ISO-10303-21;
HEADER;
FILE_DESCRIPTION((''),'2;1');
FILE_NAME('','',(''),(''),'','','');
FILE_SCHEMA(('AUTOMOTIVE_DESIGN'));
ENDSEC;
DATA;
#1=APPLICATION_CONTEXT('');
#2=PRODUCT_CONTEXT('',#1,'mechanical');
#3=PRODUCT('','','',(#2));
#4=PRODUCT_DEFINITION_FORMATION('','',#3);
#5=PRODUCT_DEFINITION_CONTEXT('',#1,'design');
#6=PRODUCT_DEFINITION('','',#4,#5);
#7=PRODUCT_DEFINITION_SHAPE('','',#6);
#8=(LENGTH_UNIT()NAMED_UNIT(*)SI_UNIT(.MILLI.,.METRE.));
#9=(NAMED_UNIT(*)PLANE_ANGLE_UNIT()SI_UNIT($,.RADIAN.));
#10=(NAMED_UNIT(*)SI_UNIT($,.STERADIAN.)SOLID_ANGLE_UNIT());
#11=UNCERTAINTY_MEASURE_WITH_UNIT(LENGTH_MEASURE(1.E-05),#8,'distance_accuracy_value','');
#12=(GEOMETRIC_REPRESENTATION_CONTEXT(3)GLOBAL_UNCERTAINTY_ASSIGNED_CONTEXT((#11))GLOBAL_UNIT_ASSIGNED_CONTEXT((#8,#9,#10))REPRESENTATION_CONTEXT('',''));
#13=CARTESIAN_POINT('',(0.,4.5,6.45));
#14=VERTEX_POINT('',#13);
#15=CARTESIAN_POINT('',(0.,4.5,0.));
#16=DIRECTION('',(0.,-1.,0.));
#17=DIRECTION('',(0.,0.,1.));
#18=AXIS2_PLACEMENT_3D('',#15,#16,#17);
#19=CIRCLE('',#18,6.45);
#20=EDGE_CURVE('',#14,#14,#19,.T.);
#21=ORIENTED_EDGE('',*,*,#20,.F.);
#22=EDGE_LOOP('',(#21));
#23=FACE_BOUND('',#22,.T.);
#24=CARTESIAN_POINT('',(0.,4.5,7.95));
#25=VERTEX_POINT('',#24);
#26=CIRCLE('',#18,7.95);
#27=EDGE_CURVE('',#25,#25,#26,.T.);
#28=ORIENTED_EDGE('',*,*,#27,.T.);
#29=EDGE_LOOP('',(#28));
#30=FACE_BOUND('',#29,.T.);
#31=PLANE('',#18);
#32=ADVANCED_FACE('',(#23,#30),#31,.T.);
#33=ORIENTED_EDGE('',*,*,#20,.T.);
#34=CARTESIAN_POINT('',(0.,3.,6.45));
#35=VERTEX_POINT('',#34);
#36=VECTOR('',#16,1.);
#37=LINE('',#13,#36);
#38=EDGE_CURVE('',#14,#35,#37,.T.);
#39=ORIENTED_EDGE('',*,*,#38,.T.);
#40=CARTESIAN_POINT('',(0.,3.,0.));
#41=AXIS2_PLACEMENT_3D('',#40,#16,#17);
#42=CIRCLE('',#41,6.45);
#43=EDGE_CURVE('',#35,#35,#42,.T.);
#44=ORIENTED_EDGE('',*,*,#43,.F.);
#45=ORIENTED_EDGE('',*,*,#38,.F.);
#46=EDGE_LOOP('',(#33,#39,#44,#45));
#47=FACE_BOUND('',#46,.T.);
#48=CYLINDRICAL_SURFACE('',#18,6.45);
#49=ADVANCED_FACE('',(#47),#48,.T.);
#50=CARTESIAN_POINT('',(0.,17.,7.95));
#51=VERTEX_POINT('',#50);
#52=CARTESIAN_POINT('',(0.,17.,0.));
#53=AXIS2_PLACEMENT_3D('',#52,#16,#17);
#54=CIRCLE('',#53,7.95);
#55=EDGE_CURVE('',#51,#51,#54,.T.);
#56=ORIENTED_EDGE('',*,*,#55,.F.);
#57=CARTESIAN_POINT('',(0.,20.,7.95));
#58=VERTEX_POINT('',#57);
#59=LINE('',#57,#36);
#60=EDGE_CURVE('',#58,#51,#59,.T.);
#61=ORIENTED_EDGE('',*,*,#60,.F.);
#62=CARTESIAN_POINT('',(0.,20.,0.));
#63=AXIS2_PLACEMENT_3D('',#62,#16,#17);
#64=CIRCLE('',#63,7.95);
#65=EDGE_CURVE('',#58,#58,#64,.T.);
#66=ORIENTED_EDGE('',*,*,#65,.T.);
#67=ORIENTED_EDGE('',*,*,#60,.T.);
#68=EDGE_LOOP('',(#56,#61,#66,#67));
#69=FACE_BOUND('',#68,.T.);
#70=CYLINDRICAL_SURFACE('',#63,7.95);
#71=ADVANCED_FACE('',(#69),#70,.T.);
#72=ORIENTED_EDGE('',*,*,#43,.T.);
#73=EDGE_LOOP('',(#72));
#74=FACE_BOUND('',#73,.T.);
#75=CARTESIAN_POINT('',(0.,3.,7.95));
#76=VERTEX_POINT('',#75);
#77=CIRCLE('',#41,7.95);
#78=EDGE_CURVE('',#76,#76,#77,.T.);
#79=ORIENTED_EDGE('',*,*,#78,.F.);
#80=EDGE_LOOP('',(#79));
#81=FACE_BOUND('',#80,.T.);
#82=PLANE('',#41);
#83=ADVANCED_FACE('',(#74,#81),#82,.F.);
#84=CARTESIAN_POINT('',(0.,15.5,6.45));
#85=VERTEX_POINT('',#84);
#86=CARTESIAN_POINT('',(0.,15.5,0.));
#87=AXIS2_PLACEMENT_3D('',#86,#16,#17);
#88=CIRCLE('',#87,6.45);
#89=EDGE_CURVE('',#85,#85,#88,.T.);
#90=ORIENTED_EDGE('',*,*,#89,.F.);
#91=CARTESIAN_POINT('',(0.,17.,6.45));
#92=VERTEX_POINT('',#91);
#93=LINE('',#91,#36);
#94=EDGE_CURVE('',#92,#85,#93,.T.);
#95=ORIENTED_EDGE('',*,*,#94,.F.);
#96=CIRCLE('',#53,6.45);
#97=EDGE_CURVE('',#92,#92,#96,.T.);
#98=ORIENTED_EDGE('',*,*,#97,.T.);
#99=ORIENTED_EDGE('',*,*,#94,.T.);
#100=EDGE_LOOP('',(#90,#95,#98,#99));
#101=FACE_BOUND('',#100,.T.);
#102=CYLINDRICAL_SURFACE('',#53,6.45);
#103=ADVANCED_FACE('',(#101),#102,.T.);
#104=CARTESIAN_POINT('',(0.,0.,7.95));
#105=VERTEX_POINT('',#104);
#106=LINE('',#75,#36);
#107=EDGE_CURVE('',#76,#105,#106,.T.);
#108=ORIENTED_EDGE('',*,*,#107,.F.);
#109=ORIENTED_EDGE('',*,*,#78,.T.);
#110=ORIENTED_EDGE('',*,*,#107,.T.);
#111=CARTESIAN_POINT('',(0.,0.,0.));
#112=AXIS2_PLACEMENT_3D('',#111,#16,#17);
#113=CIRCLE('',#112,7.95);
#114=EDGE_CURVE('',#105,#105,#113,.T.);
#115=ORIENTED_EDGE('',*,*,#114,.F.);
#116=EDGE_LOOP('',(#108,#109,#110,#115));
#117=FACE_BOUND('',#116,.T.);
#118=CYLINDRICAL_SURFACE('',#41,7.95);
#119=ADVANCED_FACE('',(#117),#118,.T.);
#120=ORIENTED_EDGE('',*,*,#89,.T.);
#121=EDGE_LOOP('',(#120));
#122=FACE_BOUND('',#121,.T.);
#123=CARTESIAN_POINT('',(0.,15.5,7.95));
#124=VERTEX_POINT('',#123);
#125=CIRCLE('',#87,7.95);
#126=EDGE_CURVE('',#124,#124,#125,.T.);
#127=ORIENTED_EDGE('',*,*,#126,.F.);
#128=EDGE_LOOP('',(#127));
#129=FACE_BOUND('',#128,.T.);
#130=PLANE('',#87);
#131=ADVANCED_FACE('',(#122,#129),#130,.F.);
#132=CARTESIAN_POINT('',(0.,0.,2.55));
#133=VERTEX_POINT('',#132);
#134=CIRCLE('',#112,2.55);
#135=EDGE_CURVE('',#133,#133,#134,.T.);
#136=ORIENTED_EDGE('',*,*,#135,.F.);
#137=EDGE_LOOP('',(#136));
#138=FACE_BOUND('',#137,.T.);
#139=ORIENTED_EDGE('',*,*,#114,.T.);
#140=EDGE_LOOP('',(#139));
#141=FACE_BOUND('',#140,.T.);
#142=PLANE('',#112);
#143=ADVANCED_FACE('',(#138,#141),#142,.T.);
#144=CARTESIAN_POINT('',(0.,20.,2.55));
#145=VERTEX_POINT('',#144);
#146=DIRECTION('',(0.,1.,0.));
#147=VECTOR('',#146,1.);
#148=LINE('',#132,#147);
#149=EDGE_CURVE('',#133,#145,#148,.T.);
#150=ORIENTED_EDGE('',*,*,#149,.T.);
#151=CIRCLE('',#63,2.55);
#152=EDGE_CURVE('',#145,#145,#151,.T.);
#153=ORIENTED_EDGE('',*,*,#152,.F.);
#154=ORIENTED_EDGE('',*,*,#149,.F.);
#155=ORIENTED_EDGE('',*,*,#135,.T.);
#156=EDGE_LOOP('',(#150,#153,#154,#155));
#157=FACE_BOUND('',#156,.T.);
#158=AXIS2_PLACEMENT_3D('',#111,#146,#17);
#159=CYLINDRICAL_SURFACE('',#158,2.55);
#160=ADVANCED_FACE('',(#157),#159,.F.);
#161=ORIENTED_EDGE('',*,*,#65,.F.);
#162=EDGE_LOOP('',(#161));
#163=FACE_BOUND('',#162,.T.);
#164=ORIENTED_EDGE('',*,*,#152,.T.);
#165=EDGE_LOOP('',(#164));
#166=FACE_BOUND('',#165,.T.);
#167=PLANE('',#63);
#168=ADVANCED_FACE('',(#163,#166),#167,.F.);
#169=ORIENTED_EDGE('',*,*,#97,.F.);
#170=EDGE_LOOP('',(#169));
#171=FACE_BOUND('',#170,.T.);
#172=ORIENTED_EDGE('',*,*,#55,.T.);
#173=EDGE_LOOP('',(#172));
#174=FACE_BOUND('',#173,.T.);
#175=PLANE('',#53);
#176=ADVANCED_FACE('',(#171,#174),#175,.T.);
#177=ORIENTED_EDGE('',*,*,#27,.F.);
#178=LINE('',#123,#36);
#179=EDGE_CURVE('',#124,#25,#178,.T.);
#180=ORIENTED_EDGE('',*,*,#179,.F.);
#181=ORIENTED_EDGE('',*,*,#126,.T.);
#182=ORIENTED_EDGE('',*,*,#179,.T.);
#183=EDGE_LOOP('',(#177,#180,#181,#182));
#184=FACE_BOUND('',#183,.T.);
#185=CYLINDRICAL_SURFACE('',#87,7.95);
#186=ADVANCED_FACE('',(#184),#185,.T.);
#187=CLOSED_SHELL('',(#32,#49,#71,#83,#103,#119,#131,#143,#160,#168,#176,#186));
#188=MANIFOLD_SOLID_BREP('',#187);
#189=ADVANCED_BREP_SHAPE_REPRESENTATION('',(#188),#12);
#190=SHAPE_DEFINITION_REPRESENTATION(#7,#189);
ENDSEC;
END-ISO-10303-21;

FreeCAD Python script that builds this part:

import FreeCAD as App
import Part
import Sketcher
from FreeCAD import Vector
Q = App.Units.Quantity

doc = App.newDocument("Part")
body = doc.addObject("PartDesign::Body", "Body")

# Sketch on YZ plane
sketch1 = body.newObject("Sketcher::SketchObject", "Sketch")
sketch1.AttachmentSupport = (doc.getObject("YZ_Plane"), [""])
sketch1.MapMode = "FlatFace"
sketch1.addGeometry([
    Part.LineSegment(Vector(0, 2.55, 0), Vector(20, 2.55, 0)),  # 0
    Part.LineSegment(Vector(20, 2.55, 0), Vector(20, 7.95, 0)),  # 1
    Part.LineSegment(Vector(20, 7.95, 0), Vector(17, 7.95, 0)),  # 2
    Part.LineSegment(Vector(17, 7.95, 0), Vector(17, 6.45, 0)),  # 3
    Part.LineSegment(Vector(17, 6.45, 0), Vector(15.5, 6.45, 0)),  # 4
    Part.LineSegment(Vector(15.5, 6.45, 0), Vector(15.5, 7.95, 0)),  # 5
    Part.LineSegment(Vector(15.5, 7.95, 0), Vector(4.5, 7.95, 0)),  # 6
    Part.LineSegment(Vector(4.5, 7.95, 0), Vector(4.5, 6.45, 0)),  # 7
    Part.LineSegment(Vector(4.5, 6.45, 0), Vector(3, 6.45, 0)),  # 8
    Part.LineSegment(Vector(3, 6.45, 0), Vector(3, 7.95, 0)),  # 9
    Part.LineSegment(Vector(3, 7.95, 0), Vector(0, 7.95, 0)),  # 10
    Part.LineSegment(Vector(0, 7.95, 0), Vector(0, 2.55, 0)),  # 11
], False)
sketch1.addConstraint([
    Sketcher.Constraint("Coincident", 0, 2, 1, 1),
    Sketcher.Constraint("Coincident", 1, 2, 2, 1),
    Sketcher.Constraint("Coincident", 2, 2, 3, 1),
    Sketcher.Constraint("Coincident", 3, 2, 4, 1),
    Sketcher.Constraint("Coincident", 4, 2, 5, 1),
    Sketcher.Constraint("Coincident", 5, 2, 6, 1),
    Sketcher.Constraint("Coincident", 6, 2, 7, 1),
    Sketcher.Constraint("Coincident", 7, 2, 8, 1),
    Sketcher.Constraint("Coincident", 8, 2, 9, 1),
    Sketcher.Constraint("Coincident", 9, 2, 10, 1),
    Sketcher.Constraint("Coincident", 10, 2, 11, 1),
    Sketcher.Constraint("Coincident", 11, 2, 0, 1),
    Sketcher.Constraint("Horizontal", 0),
    Sketcher.Constraint("Vertical", 1),
    Sketcher.Constraint("Horizontal", 2),
    Sketcher.Constraint("Vertical", 3),
    Sketcher.Constraint("Horizontal", 4),
    Sketcher.Constraint("Vertical", 5),
    Sketcher.Constraint("Horizontal", 6),
    Sketcher.Constraint("Vertical", 7),
    Sketcher.Constraint("Horizontal", 8),
    Sketcher.Constraint("Vertical", 9),
    Sketcher.Constraint("Horizontal", 10),
    Sketcher.Constraint("Vertical", 11),
    Sketcher.Constraint("PointOnObject", 10, 2, -2),
    Sketcher.Constraint("Horizontal", 2, 2, 5, 2),
    Sketcher.Constraint("Horizontal", 4, 2, 7, 2),
    Sketcher.Constraint("Horizontal", 6, 2, 9, 2),
    Sketcher.Constraint("Equal", 4, 8),
    Sketcher.Constraint("Equal", 2, 10),
    Sketcher.Constraint("Equal", 8, 3),
    Sketcher.Constraint("DistanceX", 0, 1, 0, 2, Q("20 mm")),
    Sketcher.Constraint("DistanceX", 2, 2, 2, 1, Q("3 mm")),
    Sketcher.Constraint("DistanceX", 6, 2, 6, 1, Q("11 mm")),
    Sketcher.Constraint("DistanceY", 1, 1, 1, 2, Q("5.4 mm")),
    Sketcher.Constraint("DistanceY", -1, 1, 0, 2, Q("2.55 mm")),
])
revolution = body.newObject("PartDesign::Revolution", "Revolution")
revolution.Profile = sketch1
revolution.ReferenceAxis = (sketch1, ["H_Axis"])
revolution.Angle = 360

doc.recompute()
